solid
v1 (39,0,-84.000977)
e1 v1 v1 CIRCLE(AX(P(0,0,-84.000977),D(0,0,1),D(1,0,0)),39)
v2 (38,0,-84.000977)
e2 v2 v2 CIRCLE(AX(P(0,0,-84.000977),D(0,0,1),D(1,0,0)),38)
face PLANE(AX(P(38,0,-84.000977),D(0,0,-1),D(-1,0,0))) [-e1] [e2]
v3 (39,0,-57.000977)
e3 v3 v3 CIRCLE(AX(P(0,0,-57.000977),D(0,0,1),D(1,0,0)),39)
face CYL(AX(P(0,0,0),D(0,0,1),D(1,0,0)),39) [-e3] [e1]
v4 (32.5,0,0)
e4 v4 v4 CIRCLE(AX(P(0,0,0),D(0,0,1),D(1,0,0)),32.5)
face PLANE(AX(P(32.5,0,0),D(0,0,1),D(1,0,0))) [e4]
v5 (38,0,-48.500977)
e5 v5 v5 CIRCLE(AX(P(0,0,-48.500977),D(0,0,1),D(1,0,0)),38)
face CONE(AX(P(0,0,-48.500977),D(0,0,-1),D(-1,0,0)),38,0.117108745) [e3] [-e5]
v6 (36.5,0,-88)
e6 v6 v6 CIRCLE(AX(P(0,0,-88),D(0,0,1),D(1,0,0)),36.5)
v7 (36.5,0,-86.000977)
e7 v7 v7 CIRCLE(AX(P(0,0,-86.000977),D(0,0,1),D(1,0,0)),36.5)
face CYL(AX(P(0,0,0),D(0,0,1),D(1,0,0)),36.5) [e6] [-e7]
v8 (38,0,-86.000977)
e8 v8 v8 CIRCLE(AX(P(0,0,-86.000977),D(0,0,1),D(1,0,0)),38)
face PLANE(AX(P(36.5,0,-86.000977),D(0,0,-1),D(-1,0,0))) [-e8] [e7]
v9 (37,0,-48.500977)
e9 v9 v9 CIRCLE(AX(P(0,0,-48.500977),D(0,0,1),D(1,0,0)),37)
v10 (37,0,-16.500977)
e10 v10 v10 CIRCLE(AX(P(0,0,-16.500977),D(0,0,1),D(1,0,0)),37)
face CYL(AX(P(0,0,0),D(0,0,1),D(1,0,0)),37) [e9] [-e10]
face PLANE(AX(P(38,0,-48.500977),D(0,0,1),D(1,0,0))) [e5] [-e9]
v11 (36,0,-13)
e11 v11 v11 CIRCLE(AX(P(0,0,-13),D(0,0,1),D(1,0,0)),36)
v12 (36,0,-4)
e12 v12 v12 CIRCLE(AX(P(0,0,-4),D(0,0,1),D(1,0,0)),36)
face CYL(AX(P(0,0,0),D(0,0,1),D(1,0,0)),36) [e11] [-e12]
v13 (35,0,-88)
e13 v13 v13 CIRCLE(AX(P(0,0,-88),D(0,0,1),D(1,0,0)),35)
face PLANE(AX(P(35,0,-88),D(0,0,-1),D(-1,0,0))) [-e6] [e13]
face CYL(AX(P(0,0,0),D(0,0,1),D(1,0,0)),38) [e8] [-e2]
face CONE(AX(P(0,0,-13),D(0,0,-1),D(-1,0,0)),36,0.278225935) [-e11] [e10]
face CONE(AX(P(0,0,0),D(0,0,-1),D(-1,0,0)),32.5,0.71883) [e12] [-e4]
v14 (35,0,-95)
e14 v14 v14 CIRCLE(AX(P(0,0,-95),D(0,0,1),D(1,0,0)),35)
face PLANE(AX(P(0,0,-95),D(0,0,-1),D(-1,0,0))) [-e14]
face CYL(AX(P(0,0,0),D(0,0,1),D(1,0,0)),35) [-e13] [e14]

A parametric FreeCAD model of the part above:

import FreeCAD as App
import Part
import Sketcher


def add_polygon(sketch, points):
    """Adds a closed chain of lines whose ends are joined by coincident constraints."""
    first, n = sketch.GeometryCount, len(points)
    for a, b in zip(points, points[1:] + points[:1]):
        sketch.addGeometry(Part.LineSegment(App.Vector(*a, 0), App.Vector(*b, 0)), False)
    for i in range(n):
        sketch.addConstraint(Sketcher.Constraint("Coincident", first + i, 2, first + (i + 1) % n, 1))

doc = App.newDocument("Part")
body = doc.addObject("PartDesign::Body", "Body")

# Sketch on XZ plane
sketch1 = body.newObject("Sketcher::SketchObject", "Sketch")
sketch1.AttachmentSupport = (doc.getObject("XZ_Plane"), [""])
sketch1.MapMode = "FlatFace"
add_polygon(sketch1, [(35, -95), (0, -95), (0, 0), (32.5, 0), (36, -4), (36, -13), (37, -16.5), (37, -48.5), (38, -48.5), (39, -57), (39, -84), (38, -84), (38, -86), (36.5, -86), (36.5, -88), (35, -88)])  # lines 0-15
sketch1.addConstraint(Sketcher.Constraint("Horizontal", 0))
sketch1.addConstraint(Sketcher.Constraint("Vertical", 1))
sketch1.addConstraint(Sketcher.Constraint("Horizontal", 2))
sketch1.addConstraint(Sketcher.Constraint("Vertical", 4))
sketch1.addConstraint(Sketcher.Constraint("Vertical", 6))
sketch1.addConstraint(Sketcher.Constraint("Horizontal", 7))
sketch1.addConstraint(Sketcher.Constraint("Vertical", 9))
sketch1.addConstraint(Sketcher.Constraint("Horizontal", 10))
sketch1.addConstraint(Sketcher.Constraint("Vertical", 11))
sketch1.addConstraint(Sketcher.Constraint("Horizontal", 12))
sketch1.addConstraint(Sketcher.Constraint("Vertical", 13))
sketch1.addConstraint(Sketcher.Constraint("Horizontal", 14))
sketch1.addConstraint(Sketcher.Constraint("Vertical", 15))
sketch1.addConstraint(Sketcher.Constraint("Coincident", 1, 2, -1, 1))
sketch1.addConstraint(Sketcher.Constraint("Vertical", 7, 2, 10, 2))
sketch1.addConstraint(Sketcher.Constraint("Equal", 7, 10))
sketch1.addConstraint(Sketcher.Constraint("Equal", 12, 14))
sketch1.addConstraint(Sketcher.Constraint("DistanceX", 0, 2, 0, 1, 35.0))
sketch1.addConstraint(Sketcher.Constraint("DistanceX", 7, 1, 7, 2, 1.0))
sketch1.addConstraint(Sketcher.Constraint("DistanceY", 1, 1, 1, 2, 95.0))
sketch1.addConstraint(Sketcher.Constraint("DistanceY", 4, 2, 4, 1, 9.0))
sketch1.addConstraint(Sketcher.Constraint("DistanceY", 6, 2, 6, 1, 32.0))
sketch1.addConstraint(Sketcher.Constraint("DistanceY", 9, 2, 9, 1, 27.0))
sketch1.addConstraint(Sketcher.Constraint("DistanceY", 11, 2, 11, 1, 2.0))
sketch1.addConstraint(Sketcher.Constraint("DistanceY", 15, 2, 15, 1, 7.0))
sketch1.addConstraint(Sketcher.Constraint("DistanceX", 2, 1, 2, 2, 32.5))
sketch1.addConstraint(Sketcher.Constraint("DistanceX", 12, 2, 12, 1, 1.5))
sketch1.addConstraint(Sketcher.Constraint("DistanceX", -1, 1, 3, 2, 36.0))
sketch1.addConstraint(Sketcher.Constraint("DistanceY", 3, 2, -1, 1, 4.0))
sketch1.addConstraint(Sketcher.Constraint("DistanceY", 8, 2, 7, 2, 8.5))
sketch1.addConstraint(Sketcher.Constraint("DistanceY", 13, 2, 13, 1, 1.999023))
revolution = body.newObject("PartDesign::Revolution", "Revolution")
revolution.Profile = sketch1
revolution.ReferenceAxis = (sketch1, ["V_Axis"])
revolution.Angle = 360

doc.recompute()
